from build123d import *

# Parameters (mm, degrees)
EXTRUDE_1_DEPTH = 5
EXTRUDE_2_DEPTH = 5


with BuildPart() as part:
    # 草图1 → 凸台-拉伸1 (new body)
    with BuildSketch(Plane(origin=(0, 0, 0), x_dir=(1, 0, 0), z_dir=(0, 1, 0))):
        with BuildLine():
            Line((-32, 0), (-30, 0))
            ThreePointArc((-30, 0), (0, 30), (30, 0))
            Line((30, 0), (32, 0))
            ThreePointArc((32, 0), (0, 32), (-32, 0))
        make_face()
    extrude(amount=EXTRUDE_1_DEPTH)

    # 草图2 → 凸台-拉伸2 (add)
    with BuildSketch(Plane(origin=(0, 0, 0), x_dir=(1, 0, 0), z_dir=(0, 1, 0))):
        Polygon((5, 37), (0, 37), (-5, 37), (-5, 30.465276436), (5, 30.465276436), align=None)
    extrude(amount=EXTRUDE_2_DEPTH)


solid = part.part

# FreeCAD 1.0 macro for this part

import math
import FreeCAD as App
import Part
import Sketcher
from FreeCAD import Vector

doc = App.newDocument("Part")
body = doc.addObject("PartDesign::Body", "Body")

# Sketch on XZ plane
sketch1 = body.newObject("Sketcher::SketchObject", "Sketch")
sketch1.AttachmentSupport = (doc.getObject("XZ_Plane"), [""])
sketch1.MapMode = "FlatFace"
sketch1.addGeometry(Part.LineSegment(Vector(-32, 0, 0), Vector(-30, 0, 0)), False)
sketch1.addGeometry(Part.ArcOfCircle(Part.Circle(Vector(0, 0, 0), Vector(0, 0, 1), 30), math.radians(180), math.radians(360)), False)
sketch1.addGeometry(Part.LineSegment(Vector(30, 0, 0), Vector(32, 0, 0)), False)
sketch1.addGeometry(Part.ArcOfCircle(Part.Circle(Vector(0, 0, 0), Vector(0, 0, 1), 32), math.radians(180), math.radians(360)), False)
sketch1.addConstraint(Sketcher.Constraint("Coincident", 0, 2, 1, 1))
sketch1.addConstraint(Sketcher.Constraint("Coincident", 1, 2, 2, 1))
sketch1.addConstraint(Sketcher.Constraint("Coincident", 2, 2, 3, 2))
sketch1.addConstraint(Sketcher.Constraint("Coincident", 3, 1, 0, 1))
sketch1.addConstraint(Sketcher.Constraint("Horizontal", 0))
sketch1.addConstraint(Sketcher.Constraint("Horizontal", 2))
sketch1.addConstraint(Sketcher.Constraint("Coincident", 1, 3, -1, 1))
sketch1.addConstraint(Sketcher.Constraint("Coincident", 3, 3, -1, 1))
sketch1.addConstraint(Sketcher.Constraint("PointOnObject", 0, 2, -1))
sketch1.addConstraint(Sketcher.Constraint("PointOnObject", 1, 2, -1))
sketch1.addConstraint(Sketcher.Constraint("Radius", 1, 30.0))
sketch1.addConstraint(Sketcher.Constraint("Radius", 3, 32.0))
pad1 = body.newObject("PartDesign::Pad", "Pad")
pad1.Profile = sketch1
pad1.Length = 5
pad1.Reversed = True

# Sketch on XZ plane
sketch2 = body.newObject("Sketcher::SketchObject", "Sketch001")
sketch2.AttachmentSupport = (doc.getObject("XZ_Plane"), [""])
sketch2.MapMode = "FlatFace"
sketch2.addGeometry(Part.LineSegment(Vector(5, -37, 0), Vector(-5, -37, 0)), False)
sketch2.addGeometry(Part.LineSegment(Vector(-5, -37, 0), Vector(-5, -30, 0)), False)
sketch2.addGeometry(Part.LineSegment(Vector(-5, -30, 0), Vector(5, -30, 0)), False)
sketch2.addGeometry(Part.LineSegment(Vector(5, -30, 0), Vector(5, -37, 0)), False)
sketch2.addConstraint(Sketcher.Constraint("Coincident", 0, 2, 1, 1))
sketch2.addConstraint(Sketcher.Constraint("Coincident", 1, 2, 2, 1))
sketch2.addConstraint(Sketcher.Constraint("Coincident", 2, 2, 3, 1))
sketch2.addConstraint(Sketcher.Constraint("Coincident", 3, 2, 0, 1))
sketch2.addConstraint(Sketcher.Constraint("Horizontal", 0))
sketch2.addConstraint(Sketcher.Constraint("Vertical", 1))
sketch2.addConstraint(Sketcher.Constraint("Horizontal", 2))
sketch2.addConstraint(Sketcher.Constraint("Vertical", 3))
sketch2.addConstraint(Sketcher.Constraint("DistanceX", 0, 2, 0, 1, 10.0))
sketch2.addConstraint(Sketcher.Constraint("DistanceX", 0, 2, -1, 1, 5.0))
sketch2.addConstraint(Sketcher.Constraint("DistanceY", 0, 2, -1, 1, 37.0))
sketch2.addConstraint(Sketcher.Constraint("DistanceY", 1, 1, 1, 2, 6.534724))
pad2 = body.newObject("PartDesign::Pad", "Pad001")
pad2.Profile = sketch2
pad2.Length = 5
pad2.Reversed = True

doc.recompute()
